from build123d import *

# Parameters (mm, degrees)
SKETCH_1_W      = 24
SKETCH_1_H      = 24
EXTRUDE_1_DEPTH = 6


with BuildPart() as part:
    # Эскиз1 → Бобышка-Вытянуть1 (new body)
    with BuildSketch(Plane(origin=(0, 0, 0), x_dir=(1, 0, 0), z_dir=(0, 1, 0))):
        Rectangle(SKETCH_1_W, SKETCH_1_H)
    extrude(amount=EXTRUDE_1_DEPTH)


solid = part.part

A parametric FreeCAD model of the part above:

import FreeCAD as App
import Part
import Sketcher
from FreeCAD import Vector
Q = App.Units.Quantity


def add_polygon(sketch, points):
    """Adds a closed chain of lines whose ends are joined by coincident constraints."""
    first, n = sketch.GeometryCount, len(points)
    for a, b in zip(points, points[1:] + points[:1]):
        sketch.addGeometry(Part.LineSegment(App.Vector(*a, 0), App.Vector(*b, 0)), False)
    for i in range(n):
        sketch.addConstraint(Sketcher.Constraint("Coincident", first + i, 2, first + (i + 1) % n, 1))

doc = App.newDocument("Part")
body = doc.addObject("PartDesign::Body", "Body")

sketch1 = body.newObject("Sketcher::SketchObject", "Sketch")
sketch1.AttachmentSupport = (doc.getObject("XZ_Plane"), [""])
sketch1.MapMode = "FlatFace"
add_polygon(sketch1, [(-12, -12), (-12, 12), (12, 12), (12, -12)])
sketch1.addConstraint(Sketcher.Constraint("Vertical", 0))
sketch1.addConstraint(Sketcher.Constraint("Horizontal", 1))
sketch1.addConstraint(Sketcher.Constraint("Vertical", 2))
sketch1.addConstraint(Sketcher.Constraint("Horizontal", 3))
sketch1.addConstraint(Sketcher.Constraint("Symmetric", 0, 2, 2, 2, -1, 1))
sketch1.addConstraint(Sketcher.Constraint("Equal", 3, 0))
sketch1.addConstraint(Sketcher.Constraint("DistanceX", 1, 1, 1, 2, Q("24 mm")))
pad1 = body.newObject("PartDesign::Pad", "Pad")
pad1.Profile = sketch1
pad1.Length = 6
pad1.Reversed = True

doc.recompute()
